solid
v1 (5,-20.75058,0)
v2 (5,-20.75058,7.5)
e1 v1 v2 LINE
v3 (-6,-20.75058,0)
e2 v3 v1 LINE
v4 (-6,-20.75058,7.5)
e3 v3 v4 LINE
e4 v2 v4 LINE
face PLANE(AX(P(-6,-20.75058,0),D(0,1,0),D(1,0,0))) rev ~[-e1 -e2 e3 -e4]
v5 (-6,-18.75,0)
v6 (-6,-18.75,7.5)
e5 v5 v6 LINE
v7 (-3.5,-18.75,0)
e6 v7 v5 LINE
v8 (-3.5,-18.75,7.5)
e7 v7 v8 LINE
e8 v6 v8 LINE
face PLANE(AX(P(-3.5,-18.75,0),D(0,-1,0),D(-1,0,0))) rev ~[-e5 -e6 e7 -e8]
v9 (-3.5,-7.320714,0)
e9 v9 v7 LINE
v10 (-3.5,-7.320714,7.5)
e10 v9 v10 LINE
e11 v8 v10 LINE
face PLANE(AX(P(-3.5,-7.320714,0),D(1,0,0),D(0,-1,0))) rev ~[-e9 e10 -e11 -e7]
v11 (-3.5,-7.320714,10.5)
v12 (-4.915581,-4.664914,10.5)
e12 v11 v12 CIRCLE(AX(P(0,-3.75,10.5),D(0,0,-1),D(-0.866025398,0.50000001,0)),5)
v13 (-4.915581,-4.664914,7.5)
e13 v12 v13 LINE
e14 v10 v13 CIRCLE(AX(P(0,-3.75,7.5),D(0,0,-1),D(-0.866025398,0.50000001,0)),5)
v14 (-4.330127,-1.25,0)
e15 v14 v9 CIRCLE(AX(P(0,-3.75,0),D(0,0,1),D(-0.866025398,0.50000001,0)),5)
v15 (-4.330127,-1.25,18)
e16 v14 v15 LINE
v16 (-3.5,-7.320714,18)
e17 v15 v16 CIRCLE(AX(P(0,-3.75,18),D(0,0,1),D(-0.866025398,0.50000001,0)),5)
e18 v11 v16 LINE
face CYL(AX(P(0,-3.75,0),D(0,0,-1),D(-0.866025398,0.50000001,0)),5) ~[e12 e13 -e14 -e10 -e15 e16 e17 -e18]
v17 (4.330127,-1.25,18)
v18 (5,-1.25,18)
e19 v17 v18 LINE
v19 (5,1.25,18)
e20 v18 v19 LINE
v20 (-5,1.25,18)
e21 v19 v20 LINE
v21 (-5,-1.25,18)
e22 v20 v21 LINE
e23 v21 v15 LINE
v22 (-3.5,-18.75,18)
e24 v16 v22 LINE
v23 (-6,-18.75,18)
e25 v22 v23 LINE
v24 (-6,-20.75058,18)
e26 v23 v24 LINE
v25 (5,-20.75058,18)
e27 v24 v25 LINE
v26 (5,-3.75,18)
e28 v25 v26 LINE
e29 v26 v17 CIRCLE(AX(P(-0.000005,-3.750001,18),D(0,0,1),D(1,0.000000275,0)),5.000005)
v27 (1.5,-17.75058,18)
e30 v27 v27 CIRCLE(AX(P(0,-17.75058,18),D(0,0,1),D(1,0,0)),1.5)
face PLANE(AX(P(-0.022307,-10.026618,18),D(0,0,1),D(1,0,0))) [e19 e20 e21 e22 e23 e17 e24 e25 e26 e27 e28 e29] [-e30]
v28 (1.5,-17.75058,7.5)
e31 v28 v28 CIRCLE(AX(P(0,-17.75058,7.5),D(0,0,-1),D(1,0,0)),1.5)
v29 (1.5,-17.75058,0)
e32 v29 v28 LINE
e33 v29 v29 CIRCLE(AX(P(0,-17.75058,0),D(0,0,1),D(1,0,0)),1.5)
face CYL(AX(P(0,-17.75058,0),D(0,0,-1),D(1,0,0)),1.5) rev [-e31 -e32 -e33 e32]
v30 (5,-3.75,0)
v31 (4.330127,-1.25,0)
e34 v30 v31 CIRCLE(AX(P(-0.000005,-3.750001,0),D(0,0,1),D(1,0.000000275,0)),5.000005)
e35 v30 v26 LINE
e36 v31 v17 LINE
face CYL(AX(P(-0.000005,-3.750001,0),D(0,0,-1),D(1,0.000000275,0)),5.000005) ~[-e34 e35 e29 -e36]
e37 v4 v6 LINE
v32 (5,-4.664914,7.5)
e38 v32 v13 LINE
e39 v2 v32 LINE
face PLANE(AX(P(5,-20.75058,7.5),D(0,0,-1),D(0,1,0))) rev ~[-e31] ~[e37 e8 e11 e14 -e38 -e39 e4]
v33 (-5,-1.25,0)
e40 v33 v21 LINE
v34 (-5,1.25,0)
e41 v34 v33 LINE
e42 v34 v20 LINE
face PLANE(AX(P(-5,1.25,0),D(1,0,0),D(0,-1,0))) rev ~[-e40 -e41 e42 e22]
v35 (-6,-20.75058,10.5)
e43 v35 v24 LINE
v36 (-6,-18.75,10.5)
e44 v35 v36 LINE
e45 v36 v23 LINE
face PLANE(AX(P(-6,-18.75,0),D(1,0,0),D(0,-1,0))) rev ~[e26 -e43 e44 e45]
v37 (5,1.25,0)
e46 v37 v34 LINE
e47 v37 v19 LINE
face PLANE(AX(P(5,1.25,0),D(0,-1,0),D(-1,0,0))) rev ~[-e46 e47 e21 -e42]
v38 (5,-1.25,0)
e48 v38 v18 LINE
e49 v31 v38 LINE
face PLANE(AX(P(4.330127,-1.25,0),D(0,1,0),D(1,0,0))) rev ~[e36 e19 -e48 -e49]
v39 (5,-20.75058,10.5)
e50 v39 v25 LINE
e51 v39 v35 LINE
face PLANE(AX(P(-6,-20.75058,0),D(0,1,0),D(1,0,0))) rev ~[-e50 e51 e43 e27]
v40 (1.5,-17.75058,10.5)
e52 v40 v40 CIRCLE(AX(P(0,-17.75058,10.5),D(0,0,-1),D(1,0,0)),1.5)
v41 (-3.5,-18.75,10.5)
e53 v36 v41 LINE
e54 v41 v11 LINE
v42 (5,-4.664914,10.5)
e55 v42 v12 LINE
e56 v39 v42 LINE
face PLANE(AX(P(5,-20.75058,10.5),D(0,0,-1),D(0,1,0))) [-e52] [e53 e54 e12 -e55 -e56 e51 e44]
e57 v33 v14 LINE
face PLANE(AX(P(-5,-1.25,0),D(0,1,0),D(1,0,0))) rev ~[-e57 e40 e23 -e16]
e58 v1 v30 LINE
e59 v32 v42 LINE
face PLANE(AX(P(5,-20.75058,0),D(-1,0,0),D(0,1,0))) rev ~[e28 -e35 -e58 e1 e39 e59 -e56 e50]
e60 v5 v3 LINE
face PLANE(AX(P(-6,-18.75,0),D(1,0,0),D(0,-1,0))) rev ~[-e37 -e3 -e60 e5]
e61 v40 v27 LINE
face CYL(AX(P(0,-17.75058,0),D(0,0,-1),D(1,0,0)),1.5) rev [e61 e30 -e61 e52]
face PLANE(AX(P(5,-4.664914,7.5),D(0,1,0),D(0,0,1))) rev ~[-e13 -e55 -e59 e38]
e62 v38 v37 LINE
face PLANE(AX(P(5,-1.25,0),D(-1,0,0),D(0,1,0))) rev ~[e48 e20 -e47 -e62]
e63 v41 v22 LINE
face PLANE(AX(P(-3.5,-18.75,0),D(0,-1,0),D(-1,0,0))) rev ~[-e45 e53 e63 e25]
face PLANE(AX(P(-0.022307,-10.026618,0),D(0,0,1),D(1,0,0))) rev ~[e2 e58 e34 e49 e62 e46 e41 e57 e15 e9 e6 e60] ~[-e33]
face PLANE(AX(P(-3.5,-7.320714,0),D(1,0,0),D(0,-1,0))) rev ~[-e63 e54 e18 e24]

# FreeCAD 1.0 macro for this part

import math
import FreeCAD as App
import Part
import Sketcher

V = App.Vector
Q = App.Units.Quantity

doc = App.newDocument("Part")
body = doc.addObject("PartDesign::Body", "Body")

# Sketch on XY plane
sketch1 = doc.addObject("Sketcher::SketchObject", "Sketch")
body.addObject(sketch1)
sketch1.AttachmentSupport = (doc.XY_Plane, [""])
sketch1.MapMode = "FlatFace"
sketch1.addGeometry([
    Part.LineSegment(V(4.3, -1.2, 0), V(5, -1.2, 0)),  # 0
    Part.LineSegment(V(5, -1.2, 0), V(5, 1.2, 0)),  # 1
    Part.LineSegment(V(5, 1.2, 0), V(-5, 1.2, 0)),  # 2
    Part.LineSegment(V(-5, 1.2, 0), V(-5, -1.2, 0)),  # 3
    Part.LineSegment(V(-5, -1.2, 0), V(-4.3, -1.2, 0)),  # 4
    Part.ArcOfCircle(Part.Circle(V(0, -3.7, 0), V(0, 0, 1), 5), math.radians(150), math.radians(226)),  # 5
    Part.LineSegment(V(-3.5, -7.3, 0), V(-3.5, -18.8, 0)),  # 6
    Part.LineSegment(V(-3.5, -18.8, 0), V(-6, -18.8, 0)),  # 7
    Part.LineSegment(V(-6, -18.8, 0), V(-6, -20.8, 0)),  # 8
    Part.LineSegment(V(-6, -20.8, 0), V(5, -20.8, 0)),  # 9
    Part.LineSegment(V(5, -20.8, 0), V(5, -3.8, 0)),  # 10
    Part.ArcOfCircle(Part.Circle(V(0, -3.8, 0), V(0, 0, 1), 5), math.radians(0), math.radians(30)),  # 11
    Part.Circle(V(0, -17.8, 0), V(0, 0, 1), 1.5),  # 12
], False)
sketch1.addConstraint([
    Sketcher.Constraint("Coincident", 0, 2, 1, 1),
    Sketcher.Constraint("Coincident", 1, 2, 2, 1),
    Sketcher.Constraint("Coincident", 2, 2, 3, 1),
    Sketcher.Constraint("Coincident", 3, 2, 4, 1),
    Sketcher.Constraint("Coincident", 4, 2, 5, 1),
    Sketcher.Constraint("Coincident", 5, 2, 6, 1),
    Sketcher.Constraint("Coincident", 6, 2, 7, 1),
    Sketcher.Constraint("Coincident", 7, 2, 8, 1),
    Sketcher.Constraint("Coincident", 8, 2, 9, 1),
    Sketcher.Constraint("Coincident", 9, 2, 10, 1),
    Sketcher.Constraint("Tangent", 10, 2, 11, 1),
    Sketcher.Constraint("Coincident", 11, 2, 0, 1),
    Sketcher.Constraint("Horizontal", 0),
    Sketcher.Constraint("Vertical", 1),
    Sketcher.Constraint("Horizontal", 2),
    Sketcher.Constraint("Vertical", 3),
    Sketcher.Constraint("Horizontal", 4),
    Sketcher.Constraint("Vertical", 6),
    Sketcher.Constraint("Horizontal", 7),
    Sketcher.Constraint("Vertical", 8),
    Sketcher.Constraint("Horizontal", 9),
    Sketcher.Constraint("Vertical", 10),
    Sketcher.Constraint("Coincident", 11, 3, 5, 3),
    Sketcher.Constraint("Symmetric", 0, 2, 2, 2, -1, 1),
    Sketcher.Constraint("Symmetric", 4, 2, 11, 2, -2),
    Sketcher.Constraint("PointOnObject", 5, 3, -2),
    Sketcher.Constraint("PointOnObject", 12, 3, -2),
    Sketcher.Constraint("Vertical", 1, 2, 9, 2),
    Sketcher.Constraint("Equal", 7, 1),
    Sketcher.Constraint("Diameter", 12, Q("3 mm")),
    Sketcher.Constraint("Radius", 5, Q("5 mm")),
    Sketcher.Constraint("DistanceX", 9, 1, 9, 2, Q("11 mm")),
    Sketcher.Constraint("DistanceX", 7, 2, 7, 1, Q("2.5 mm")),
    Sketcher.Constraint("DistanceY", 5, 3, 1, 2, Q("5 mm")),
    Sketcher.Constraint("DistanceY", 6, 2, 11, 3, Q("14.999999 mm")),
    Sketcher.Constraint("DistanceY", 8, 2, 12, 3, Q("3 mm")),
    Sketcher.Constraint("DistanceY", 8, 2, 8, 1, Q("2.00058 mm")),
])
pad1 = doc.addObject("PartDesign::Pad", "Pad")
body.addObject(pad1)
pad1.Profile = sketch1
pad1.Length = 18

# Sketch on YZ plane
sketch2 = doc.addObject("Sketcher::SketchObject", "Sketch001")
body.addObject(sketch2)
sketch2.AttachmentSupport = (doc.YZ_Plane, [""])
sketch2.MapMode = "FlatFace"
sketch2.AttachmentOffset = App.Placement(V(0, 0, 5), App.Rotation())
sketch2.addGeometry([
    Part.LineSegment(V(-20.8, 10.5, 0), V(-20.8, 7.5, 0)),
    Part.LineSegment(V(-20.8, 7.5, 0), V(-4.7, 7.5, 0)),
    Part.LineSegment(V(-4.7, 7.5, 0), V(-4.7, 10.5, 0)),
    Part.LineSegment(V(-4.7, 10.5, 0), V(-20.8, 10.5, 0)),
], False)
sketch2.addConstraint([
    Sketcher.Constraint("Coincident", 0, 2, 1, 1),
    Sketcher.Constraint("Coincident", 1, 2, 2, 1),
    Sketcher.Constraint("Coincident", 2, 2, 3, 1),
    Sketcher.Constraint("Coincident", 3, 2, 0, 1),
    Sketcher.Constraint("Vertical", 0),
    Sketcher.Constraint("Horizontal", 1),
    Sketcher.Constraint("Vertical", 2),
    Sketcher.Constraint("Horizontal", 3),
    Sketcher.Constraint("DistanceY", 0, 2, 0, 1, Q("3 mm")),
    Sketcher.Constraint("DistanceY", -1, 1, 0, 2, Q("7.5 mm")),
    Sketcher.Constraint("DistanceX", 1, 1, 1, 2, Q("16.085666 mm")),
    Sketcher.Constraint("DistanceX", 0, 2, -1, 1, Q("20.75058 mm")),
])
pocket1 = doc.addObject("PartDesign::Pocket", "Pocket")
body.addObject(pocket1)
pocket1.Profile = sketch2
pocket1.Length = 11

doc.recompute()
